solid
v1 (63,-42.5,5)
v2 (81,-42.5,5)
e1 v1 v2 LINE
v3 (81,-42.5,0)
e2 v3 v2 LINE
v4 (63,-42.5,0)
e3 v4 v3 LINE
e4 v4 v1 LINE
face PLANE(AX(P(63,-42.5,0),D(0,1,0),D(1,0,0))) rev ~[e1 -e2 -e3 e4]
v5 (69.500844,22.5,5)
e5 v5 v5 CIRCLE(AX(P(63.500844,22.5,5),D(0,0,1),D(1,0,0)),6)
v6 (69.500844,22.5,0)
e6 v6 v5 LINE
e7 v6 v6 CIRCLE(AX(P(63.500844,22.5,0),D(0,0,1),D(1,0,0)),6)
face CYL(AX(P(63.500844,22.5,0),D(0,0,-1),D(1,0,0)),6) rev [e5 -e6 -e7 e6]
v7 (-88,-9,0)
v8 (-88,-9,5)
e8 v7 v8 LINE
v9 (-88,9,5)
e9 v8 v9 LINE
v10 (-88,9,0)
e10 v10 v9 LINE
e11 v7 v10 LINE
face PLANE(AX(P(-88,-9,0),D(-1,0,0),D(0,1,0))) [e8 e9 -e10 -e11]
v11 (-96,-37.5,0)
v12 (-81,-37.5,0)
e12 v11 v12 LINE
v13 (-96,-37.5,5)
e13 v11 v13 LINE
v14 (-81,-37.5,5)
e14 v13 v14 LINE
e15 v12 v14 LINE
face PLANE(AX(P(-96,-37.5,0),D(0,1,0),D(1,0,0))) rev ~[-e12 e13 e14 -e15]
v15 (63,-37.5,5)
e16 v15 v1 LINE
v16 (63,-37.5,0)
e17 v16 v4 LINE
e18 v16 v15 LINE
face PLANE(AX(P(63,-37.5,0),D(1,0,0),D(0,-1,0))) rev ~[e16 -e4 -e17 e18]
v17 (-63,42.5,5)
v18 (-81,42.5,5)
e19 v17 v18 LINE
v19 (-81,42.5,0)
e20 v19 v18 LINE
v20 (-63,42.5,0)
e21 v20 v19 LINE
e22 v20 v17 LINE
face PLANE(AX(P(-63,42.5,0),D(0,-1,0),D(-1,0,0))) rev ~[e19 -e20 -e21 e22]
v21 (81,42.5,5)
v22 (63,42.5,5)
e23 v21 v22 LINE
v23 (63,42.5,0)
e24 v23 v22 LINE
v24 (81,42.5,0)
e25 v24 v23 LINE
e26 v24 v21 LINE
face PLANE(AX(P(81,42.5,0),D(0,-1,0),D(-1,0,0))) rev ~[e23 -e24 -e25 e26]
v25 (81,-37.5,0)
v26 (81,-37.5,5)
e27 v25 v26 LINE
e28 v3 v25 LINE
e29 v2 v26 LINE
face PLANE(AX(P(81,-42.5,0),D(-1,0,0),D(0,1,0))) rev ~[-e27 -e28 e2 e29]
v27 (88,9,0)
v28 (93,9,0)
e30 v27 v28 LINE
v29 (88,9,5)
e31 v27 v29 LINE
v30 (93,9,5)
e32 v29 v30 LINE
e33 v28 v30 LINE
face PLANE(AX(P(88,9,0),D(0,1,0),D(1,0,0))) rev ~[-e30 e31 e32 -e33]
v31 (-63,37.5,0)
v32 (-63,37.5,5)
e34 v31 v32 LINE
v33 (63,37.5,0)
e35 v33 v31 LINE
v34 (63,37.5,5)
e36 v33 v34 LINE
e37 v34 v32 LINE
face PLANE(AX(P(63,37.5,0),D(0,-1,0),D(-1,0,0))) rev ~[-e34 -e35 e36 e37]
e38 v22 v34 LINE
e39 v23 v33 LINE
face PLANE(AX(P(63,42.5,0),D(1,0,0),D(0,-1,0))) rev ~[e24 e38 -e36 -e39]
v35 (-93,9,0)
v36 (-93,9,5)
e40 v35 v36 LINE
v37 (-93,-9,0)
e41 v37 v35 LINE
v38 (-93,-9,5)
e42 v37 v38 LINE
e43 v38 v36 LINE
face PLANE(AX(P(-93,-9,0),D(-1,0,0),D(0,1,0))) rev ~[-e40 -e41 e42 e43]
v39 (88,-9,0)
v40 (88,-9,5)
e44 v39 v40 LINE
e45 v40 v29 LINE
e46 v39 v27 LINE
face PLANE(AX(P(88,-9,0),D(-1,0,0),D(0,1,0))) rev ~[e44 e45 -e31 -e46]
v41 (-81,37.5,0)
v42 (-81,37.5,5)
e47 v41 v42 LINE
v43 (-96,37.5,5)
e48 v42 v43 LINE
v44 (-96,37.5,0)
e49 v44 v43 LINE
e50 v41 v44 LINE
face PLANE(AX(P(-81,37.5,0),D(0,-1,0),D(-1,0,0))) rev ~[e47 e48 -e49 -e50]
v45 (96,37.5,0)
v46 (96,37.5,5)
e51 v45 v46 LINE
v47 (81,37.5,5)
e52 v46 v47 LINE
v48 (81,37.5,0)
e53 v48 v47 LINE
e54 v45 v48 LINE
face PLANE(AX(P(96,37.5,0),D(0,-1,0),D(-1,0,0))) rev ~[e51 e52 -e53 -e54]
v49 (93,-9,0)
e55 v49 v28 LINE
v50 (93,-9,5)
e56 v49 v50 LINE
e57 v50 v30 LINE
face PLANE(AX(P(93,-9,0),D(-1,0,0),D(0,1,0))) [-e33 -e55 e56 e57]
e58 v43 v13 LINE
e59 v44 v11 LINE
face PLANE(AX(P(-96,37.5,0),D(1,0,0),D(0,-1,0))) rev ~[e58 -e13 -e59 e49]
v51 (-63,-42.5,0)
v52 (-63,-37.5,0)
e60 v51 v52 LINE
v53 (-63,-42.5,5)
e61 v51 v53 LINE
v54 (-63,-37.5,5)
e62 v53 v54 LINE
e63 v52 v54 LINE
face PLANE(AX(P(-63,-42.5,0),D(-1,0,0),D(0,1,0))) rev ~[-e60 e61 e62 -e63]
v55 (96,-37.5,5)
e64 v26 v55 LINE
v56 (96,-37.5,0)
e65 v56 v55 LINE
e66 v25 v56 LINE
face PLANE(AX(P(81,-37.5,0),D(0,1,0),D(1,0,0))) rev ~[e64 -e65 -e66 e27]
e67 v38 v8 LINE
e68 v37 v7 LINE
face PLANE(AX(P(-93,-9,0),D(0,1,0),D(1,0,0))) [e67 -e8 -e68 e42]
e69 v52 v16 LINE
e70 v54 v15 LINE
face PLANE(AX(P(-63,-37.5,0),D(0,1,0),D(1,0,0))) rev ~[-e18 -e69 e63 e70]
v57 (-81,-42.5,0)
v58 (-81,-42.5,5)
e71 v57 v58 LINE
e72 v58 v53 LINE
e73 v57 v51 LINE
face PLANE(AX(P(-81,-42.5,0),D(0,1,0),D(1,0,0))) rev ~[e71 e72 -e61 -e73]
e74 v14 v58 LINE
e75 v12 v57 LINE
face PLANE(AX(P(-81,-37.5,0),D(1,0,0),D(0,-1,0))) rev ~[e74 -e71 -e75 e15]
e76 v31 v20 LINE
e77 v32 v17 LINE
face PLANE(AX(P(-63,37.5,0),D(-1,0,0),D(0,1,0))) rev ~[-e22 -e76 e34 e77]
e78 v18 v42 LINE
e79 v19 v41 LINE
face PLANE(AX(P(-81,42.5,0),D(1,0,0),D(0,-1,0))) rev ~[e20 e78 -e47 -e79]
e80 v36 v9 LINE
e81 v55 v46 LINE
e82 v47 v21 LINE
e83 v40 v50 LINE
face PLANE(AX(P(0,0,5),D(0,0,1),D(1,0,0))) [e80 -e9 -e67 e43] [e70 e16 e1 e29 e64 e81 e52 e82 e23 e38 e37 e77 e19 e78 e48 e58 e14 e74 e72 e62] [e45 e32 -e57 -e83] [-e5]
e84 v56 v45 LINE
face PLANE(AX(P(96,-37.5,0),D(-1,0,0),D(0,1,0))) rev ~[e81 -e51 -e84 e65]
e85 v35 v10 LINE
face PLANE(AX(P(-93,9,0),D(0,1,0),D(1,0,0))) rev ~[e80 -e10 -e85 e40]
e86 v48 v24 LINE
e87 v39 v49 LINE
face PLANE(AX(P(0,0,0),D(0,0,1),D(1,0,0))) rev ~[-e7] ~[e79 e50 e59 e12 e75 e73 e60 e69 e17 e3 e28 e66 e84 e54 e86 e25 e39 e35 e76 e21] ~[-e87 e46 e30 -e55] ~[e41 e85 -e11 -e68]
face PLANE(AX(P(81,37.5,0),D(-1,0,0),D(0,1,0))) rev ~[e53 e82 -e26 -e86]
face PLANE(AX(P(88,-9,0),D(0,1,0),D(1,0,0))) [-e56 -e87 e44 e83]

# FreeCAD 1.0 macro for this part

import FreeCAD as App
import Part
import Sketcher
Q = App.Units.Quantity


def add_polygon(sketch, points):
    """Adds a closed chain of lines whose ends are joined by coincident constraints."""
    first, n = sketch.GeometryCount, len(points)
    for a, b in zip(points, points[1:] + points[:1]):
        sketch.addGeometry(Part.LineSegment(App.Vector(*a, 0), App.Vector(*b, 0)), False)
    for i in range(n):
        sketch.addConstraint(Sketcher.Constraint("Coincident", first + i, 2, first + (i + 1) % n, 1))

doc = App.newDocument("Part")
body = doc.addObject("PartDesign::Body", "Body")

sketch1 = doc.addObject("Sketcher::SketchObject", "Sketch")
body.addObject(sketch1)
sketch1.AttachmentSupport = (doc.XY_Plane, [""])
sketch1.MapMode = "FlatFace"
add_polygon(sketch1, [(96, -38), (96, 38), (81, 38), (81, 42), (63, 42), (63, 38), (-63, 38), (-63, 42), (-81, 42), (-81, 38), (-96, 38), (-96, -38), (-81, -38), (-81, -42), (-63, -42), (-63, -38), (63, -38), (63, -42), (81, -42), (81, -38)])
add_polygon(sketch1, [(-88, -9), (-93, -9), (-93, 9), (-88, 9)])
add_polygon(sketch1, [(93, -9), (88, -9), (88, 9), (93, 9)])
sketch1.addGeometry(Part.Circle(App.Vector(64, 22, 0), App.Vector(0, 0, 1), 6), False)
sketch1.addConstraint([
    Sketcher.Constraint("Vertical", 0),
    Sketcher.Constraint("Horizontal", 1),
    Sketcher.Constraint("Vertical", 2),
    Sketcher.Constraint("Horizontal", 3),
    Sketcher.Constraint("Vertical", 4),
    Sketcher.Constraint("Horizontal", 5),
    Sketcher.Constraint("Vertical", 6),
    Sketcher.Constraint("Horizontal", 7),
    Sketcher.Constraint("Vertical", 8),
    Sketcher.Constraint("Horizontal", 9),
    Sketcher.Constraint("Vertical", 10),
    Sketcher.Constraint("Horizontal", 11),
    Sketcher.Constraint("Vertical", 12),
    Sketcher.Constraint("Horizontal", 13),
    Sketcher.Constraint("Vertical", 14),
    Sketcher.Constraint("Horizontal", 15),
    Sketcher.Constraint("Vertical", 16),
    Sketcher.Constraint("Horizontal", 17),
    Sketcher.Constraint("Vertical", 18),
    Sketcher.Constraint("Horizontal", 19),
    Sketcher.Constraint("Horizontal", 20),
    Sketcher.Constraint("Vertical", 21),
    Sketcher.Constraint("Horizontal", 22),
    Sketcher.Constraint("Vertical", 23),
    Sketcher.Constraint("Horizontal", 24),
    Sketcher.Constraint("Vertical", 25),
    Sketcher.Constraint("Horizontal", 26),
    Sketcher.Constraint("Vertical", 27),
    Sketcher.Constraint("Symmetric", 0, 2, 10, 2, -1, 1),
    Sketcher.Constraint("Symmetric", 2, 2, 12, 2, -1, 1),
    Sketcher.Constraint("Symmetric", 4, 2, 14, 2, -1, 1),
    Sketcher.Constraint("Symmetric", 6, 2, 16, 2, -1, 1),
    Sketcher.Constraint("Symmetric", 8, 2, 18, 2, -1, 1),
    Sketcher.Constraint("Symmetric", 22, 2, 24, 2, -1, 1),
    Sketcher.Constraint("Symmetric", 20, 2, 26, 2, -1, 1),
    Sketcher.Constraint("Symmetric", 3, 2, 6, 2, -2),
    Sketcher.Constraint("Symmetric", 1, 2, 8, 2, -2),
    Sketcher.Constraint("Horizontal", 1, 2, 4, 2),
    Sketcher.Constraint("Horizontal", 23, 2, 24, 2),
    Sketcher.Constraint("Equal", 26, 2),
    Sketcher.Constraint("Equal", 17, 21),
    Sketcher.Constraint("Diameter", 28, Q("12 mm")),
    Sketcher.Constraint("DistanceX", 1, 2, 1, 1, Q("15 mm")),
    Sketcher.Constraint("DistanceX", 3, 2, 3, 1, Q("18 mm")),
    Sketcher.Constraint("DistanceX", 5, 2, 5, 1, Q("126 mm")),
    Sketcher.Constraint("DistanceX", 20, 2, 20, 1, Q("5 mm")),
    Sketcher.Constraint("DistanceY", 0, 1, 0, 2, Q("75 mm")),
    Sketcher.Constraint("DistanceX", 20, 2, -1, 1, Q("93 mm")),
    Sketcher.Constraint("DistanceY", 28, 3, 0, 2, Q("15 mm")),
    Sketcher.Constraint("DistanceX", -1, 1, 28, 3, Q("63.500844 mm")),
])
pad1 = doc.addObject("PartDesign::Pad", "Pad")
body.addObject(pad1)
pad1.Profile = sketch1
pad1.Length = 5

doc.recompute()
